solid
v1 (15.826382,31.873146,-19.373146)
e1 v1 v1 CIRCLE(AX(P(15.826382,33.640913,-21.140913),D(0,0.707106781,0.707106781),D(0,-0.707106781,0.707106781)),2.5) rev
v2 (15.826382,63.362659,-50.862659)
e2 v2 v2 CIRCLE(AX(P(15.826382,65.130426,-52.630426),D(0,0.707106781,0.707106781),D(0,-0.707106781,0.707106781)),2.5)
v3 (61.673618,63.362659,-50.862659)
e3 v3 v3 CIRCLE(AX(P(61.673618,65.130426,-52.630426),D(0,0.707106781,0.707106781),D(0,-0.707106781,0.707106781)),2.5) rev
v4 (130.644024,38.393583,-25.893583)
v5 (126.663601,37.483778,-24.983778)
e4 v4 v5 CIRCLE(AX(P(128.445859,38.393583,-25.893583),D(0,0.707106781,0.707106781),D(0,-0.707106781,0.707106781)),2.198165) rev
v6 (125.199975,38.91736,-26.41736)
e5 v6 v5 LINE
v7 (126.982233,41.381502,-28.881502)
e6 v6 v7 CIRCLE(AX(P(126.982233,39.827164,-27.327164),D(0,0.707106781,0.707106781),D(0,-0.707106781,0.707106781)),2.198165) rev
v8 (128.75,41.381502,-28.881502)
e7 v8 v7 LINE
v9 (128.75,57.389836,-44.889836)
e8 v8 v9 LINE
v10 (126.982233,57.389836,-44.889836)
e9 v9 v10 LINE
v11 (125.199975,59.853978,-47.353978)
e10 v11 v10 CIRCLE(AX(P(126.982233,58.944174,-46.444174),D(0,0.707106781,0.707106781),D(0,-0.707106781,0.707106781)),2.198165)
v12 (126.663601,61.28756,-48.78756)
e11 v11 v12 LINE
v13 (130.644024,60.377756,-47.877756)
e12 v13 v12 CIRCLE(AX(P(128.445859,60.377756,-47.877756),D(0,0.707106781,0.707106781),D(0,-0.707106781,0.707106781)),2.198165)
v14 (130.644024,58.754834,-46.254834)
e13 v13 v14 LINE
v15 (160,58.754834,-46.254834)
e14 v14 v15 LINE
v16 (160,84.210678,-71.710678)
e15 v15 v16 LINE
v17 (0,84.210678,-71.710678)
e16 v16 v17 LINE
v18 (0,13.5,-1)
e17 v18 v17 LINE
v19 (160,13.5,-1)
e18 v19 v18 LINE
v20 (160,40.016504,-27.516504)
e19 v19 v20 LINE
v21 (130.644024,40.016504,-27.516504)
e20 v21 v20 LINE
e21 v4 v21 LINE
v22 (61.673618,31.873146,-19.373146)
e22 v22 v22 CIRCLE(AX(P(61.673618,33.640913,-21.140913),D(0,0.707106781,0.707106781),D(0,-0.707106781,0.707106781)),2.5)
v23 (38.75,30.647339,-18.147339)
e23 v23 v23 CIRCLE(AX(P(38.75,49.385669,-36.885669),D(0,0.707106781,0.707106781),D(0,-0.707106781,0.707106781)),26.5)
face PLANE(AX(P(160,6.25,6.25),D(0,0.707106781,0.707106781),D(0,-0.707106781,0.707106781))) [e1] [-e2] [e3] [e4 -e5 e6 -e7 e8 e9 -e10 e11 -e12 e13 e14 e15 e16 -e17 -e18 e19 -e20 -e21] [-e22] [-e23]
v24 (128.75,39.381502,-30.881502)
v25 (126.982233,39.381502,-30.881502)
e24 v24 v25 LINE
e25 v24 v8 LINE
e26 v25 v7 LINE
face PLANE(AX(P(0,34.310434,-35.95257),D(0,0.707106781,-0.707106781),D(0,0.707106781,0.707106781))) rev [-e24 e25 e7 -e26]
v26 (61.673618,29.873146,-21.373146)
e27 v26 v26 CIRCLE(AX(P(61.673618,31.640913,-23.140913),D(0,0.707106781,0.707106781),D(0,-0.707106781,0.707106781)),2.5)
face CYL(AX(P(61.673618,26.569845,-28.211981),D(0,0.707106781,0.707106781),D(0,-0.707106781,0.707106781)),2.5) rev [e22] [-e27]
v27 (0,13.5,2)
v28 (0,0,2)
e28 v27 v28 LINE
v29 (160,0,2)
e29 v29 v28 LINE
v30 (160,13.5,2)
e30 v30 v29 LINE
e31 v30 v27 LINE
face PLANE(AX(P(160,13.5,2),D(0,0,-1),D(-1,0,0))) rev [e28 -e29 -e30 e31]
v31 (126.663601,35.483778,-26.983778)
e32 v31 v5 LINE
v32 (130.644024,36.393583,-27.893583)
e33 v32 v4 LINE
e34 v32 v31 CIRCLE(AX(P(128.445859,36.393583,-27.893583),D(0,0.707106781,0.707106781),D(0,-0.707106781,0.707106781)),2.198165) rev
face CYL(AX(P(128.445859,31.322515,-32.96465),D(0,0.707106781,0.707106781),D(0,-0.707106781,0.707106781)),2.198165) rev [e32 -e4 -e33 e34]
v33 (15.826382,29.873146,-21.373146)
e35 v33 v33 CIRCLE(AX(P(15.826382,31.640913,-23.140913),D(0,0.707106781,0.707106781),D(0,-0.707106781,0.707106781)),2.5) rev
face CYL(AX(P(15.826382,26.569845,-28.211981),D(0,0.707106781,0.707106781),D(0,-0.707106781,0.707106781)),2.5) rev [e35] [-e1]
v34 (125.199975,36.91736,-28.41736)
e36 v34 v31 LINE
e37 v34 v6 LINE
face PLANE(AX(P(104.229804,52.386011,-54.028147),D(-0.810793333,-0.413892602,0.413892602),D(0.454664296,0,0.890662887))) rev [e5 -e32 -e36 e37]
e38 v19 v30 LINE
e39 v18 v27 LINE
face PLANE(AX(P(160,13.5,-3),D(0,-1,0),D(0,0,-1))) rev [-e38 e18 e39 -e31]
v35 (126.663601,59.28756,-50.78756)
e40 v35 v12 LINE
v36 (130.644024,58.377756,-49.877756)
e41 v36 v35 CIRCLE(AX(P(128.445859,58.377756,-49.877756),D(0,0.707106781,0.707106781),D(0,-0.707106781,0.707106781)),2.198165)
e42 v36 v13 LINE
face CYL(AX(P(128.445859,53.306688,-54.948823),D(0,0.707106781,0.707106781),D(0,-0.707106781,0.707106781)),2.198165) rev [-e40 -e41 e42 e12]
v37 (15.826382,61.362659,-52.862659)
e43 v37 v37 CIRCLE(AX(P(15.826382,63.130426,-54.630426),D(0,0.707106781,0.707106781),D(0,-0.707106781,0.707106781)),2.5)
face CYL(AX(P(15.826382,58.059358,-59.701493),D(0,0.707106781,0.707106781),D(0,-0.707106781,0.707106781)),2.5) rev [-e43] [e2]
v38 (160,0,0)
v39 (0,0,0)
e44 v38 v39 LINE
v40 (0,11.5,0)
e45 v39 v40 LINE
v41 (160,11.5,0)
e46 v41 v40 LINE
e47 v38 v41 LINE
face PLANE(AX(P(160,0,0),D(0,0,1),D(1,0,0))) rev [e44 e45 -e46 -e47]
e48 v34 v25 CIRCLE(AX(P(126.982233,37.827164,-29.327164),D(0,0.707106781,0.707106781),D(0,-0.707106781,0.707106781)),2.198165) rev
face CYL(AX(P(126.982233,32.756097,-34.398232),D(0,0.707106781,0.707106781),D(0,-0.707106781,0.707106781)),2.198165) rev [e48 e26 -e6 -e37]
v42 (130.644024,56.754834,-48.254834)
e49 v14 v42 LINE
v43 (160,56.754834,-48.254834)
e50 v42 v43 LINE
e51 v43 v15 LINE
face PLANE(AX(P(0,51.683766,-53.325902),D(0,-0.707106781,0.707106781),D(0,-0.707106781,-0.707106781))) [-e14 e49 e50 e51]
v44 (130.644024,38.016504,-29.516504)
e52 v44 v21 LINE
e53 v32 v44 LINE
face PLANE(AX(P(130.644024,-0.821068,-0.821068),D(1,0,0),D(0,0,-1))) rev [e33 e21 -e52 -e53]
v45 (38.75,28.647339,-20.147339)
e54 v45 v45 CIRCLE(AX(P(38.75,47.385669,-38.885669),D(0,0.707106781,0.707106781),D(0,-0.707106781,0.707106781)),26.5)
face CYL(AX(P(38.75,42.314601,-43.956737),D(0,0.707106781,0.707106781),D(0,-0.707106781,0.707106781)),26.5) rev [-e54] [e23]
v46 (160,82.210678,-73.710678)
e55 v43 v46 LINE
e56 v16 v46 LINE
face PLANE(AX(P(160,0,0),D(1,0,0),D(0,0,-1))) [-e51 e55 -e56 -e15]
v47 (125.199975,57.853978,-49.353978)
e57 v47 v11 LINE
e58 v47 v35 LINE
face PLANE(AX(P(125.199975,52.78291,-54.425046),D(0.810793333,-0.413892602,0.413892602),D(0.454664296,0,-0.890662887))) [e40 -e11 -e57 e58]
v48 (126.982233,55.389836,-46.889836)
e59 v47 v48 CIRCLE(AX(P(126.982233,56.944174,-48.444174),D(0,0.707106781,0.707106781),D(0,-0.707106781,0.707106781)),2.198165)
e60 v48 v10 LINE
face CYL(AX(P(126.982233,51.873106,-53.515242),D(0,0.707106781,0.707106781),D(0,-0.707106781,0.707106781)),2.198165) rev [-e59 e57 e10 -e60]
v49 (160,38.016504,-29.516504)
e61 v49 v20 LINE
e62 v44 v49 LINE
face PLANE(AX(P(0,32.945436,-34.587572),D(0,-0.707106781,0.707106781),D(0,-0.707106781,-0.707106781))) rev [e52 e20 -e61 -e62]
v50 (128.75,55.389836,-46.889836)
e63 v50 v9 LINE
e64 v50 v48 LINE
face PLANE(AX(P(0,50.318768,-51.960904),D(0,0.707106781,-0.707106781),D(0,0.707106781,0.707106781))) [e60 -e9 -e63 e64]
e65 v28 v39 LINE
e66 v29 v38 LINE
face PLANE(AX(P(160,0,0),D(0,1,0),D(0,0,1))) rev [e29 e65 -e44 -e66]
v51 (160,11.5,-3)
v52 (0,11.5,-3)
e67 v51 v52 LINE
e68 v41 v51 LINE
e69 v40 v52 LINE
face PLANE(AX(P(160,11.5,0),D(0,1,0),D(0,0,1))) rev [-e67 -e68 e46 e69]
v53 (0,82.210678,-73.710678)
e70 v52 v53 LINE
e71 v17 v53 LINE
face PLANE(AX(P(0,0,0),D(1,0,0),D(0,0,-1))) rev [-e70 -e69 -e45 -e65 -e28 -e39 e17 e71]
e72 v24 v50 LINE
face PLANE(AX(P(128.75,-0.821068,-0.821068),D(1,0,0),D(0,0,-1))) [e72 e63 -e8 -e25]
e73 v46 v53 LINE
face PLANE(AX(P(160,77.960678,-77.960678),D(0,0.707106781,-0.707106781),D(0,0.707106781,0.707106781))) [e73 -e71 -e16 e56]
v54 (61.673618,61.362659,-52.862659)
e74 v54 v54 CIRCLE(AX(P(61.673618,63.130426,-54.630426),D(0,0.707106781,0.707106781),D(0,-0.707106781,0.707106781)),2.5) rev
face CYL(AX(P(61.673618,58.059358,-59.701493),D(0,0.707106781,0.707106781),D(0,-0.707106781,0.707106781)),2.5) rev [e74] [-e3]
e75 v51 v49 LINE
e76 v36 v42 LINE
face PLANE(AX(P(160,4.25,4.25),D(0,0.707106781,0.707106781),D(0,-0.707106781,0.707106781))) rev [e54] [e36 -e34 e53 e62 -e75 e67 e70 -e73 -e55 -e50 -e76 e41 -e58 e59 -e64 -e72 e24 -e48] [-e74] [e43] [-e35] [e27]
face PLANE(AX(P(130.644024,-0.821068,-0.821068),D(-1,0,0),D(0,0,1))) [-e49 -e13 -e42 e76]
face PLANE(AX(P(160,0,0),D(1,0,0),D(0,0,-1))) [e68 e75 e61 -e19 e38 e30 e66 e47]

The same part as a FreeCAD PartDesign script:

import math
import FreeCAD as App
import Part
import Sketcher

V = App.Vector


def add_polygon(sketch, points):
    """Adds a closed chain of lines whose ends are joined by coincident constraints."""
    first, n = sketch.GeometryCount, len(points)
    for a, b in zip(points, points[1:] + points[:1]):
        sketch.addGeometry(Part.LineSegment(App.Vector(*a, 0), App.Vector(*b, 0)), False)
    for i in range(n):
        sketch.addConstraint(Sketcher.Constraint("Coincident", first + i, 2, first + (i + 1) % n, 1))

doc = App.newDocument("Part")
body = doc.addObject("PartDesign::Body", "Body")

sketch1 = doc.addObject("Sketcher::SketchObject", "Sketch")
body.addObject(sketch1)
sketch1.AttachmentSupport = (doc.YZ_Plane, [""])
sketch1.MapMode = "FlatFace"
add_polygon(sketch1, [(0, 0), (11.5, 0), (11.5, -3), (13.5, -3), (13.5, 2), (0, 2)])
sketch1.addConstraint(Sketcher.Constraint("Horizontal", 0))
sketch1.addConstraint(Sketcher.Constraint("Vertical", 1))
sketch1.addConstraint(Sketcher.Constraint("Horizontal", 2))
sketch1.addConstraint(Sketcher.Constraint("Vertical", 3))
sketch1.addConstraint(Sketcher.Constraint("Horizontal", 4))
sketch1.addConstraint(Sketcher.Constraint("Vertical", 5))
sketch1.addConstraint(Sketcher.Constraint("Coincident", 5, 2, -1, 1))
sketch1.addConstraint(Sketcher.Constraint("Equal", 2, 5))
sketch1.addConstraint(Sketcher.Constraint("DistanceX", 2, 1, 2, 2, 2.0))
sketch1.addConstraint(Sketcher.Constraint("DistanceY", 1, 2, 1, 1, 3.0))
sketch1.addConstraint(Sketcher.Constraint("DistanceX", 0, 1, 0, 2, 11.5))
pad1 = doc.addObject("PartDesign::Pad", "Pad")
body.addObject(pad1)
pad1.Profile = sketch1
pad1.Length = 160

sketch2 = doc.addObject("Sketcher::SketchObject", "Sketch001")
body.addObject(sketch2)
sketch2.AttachmentSupport = (doc.YZ_Plane, [""])
sketch2.MapMode = "FlatFace"
add_polygon(sketch2, [(13.5, -3), (11.5, -3), (82.210678, -73.710678), (84.210678, -71.710678), (13.5, -1)])
sketch2.addConstraint(Sketcher.Constraint("Horizontal", 0))
sketch2.addConstraint(Sketcher.Constraint("Vertical", 4))
sketch2.addConstraint(Sketcher.Constraint("Perpendicular", 1, 2))
sketch2.addConstraint(Sketcher.Constraint("Perpendicular", 2, 3))
sketch2.addConstraint(Sketcher.Constraint("Equal", 0, 4))
sketch2.addConstraint(Sketcher.Constraint("Equal", 1, 3))
sketch2.addConstraint(Sketcher.Constraint("DistanceX", 0, 2, 0, 1, 2.0))
sketch2.addConstraint(Sketcher.Constraint("Distance", 1, 100.0))
sketch2.addConstraint(Sketcher.Constraint("DistanceY", 0, 2, -1, 1, 3.0))
sketch2.addConstraint(Sketcher.Constraint("DistanceX", -1, 1, 0, 2, 11.5))
pad2 = doc.addObject("PartDesign::Pad", "Pad001")
body.addObject(pad2)
pad2.Profile = sketch2
pad2.Length = 160

sketch3 = doc.addObject("Sketcher::SketchObject", "Sketch002")
body.addObject(sketch3)
sketch3.Placement = App.Placement(V(0, 6.25, 6.25), App.Rotation(V(1, 0, 0), V(0, 0.707106781, -0.707106781), V(0, 0.707106781, 0.707106781), "ZXY"))
add_polygon(sketch3, [(128.75, 74.253048), (128.75, 47.753048), (160, 47.753048), (160, 74.253048)])
sketch3.addConstraint(Sketcher.Constraint("Vertical", 0))
sketch3.addConstraint(Sketcher.Constraint("Horizontal", 1))
sketch3.addConstraint(Sketcher.Constraint("Vertical", 2))
sketch3.addConstraint(Sketcher.Constraint("Horizontal", 3))
sketch3.addConstraint(Sketcher.Constraint("DistanceY", 0, 2, 0, 1, 26.5))
sketch3.addConstraint(Sketcher.Constraint("DistanceX", -1, 1, 1, 2, 160.0))
sketch3.addConstraint(Sketcher.Constraint("DistanceX", 1, 1, 1, 2, 31.25))
sketch3.addConstraint(Sketcher.Constraint("DistanceY", -1, 1, 0, 2, 47.753048))
pocket1 = doc.addObject("PartDesign::Pocket", "Pocket")
body.addObject(pocket1)
pocket1.Profile = sketch3
pocket1.Length = 10

sketch4 = doc.addObject("Sketcher::SketchObject", "Sketch003")
body.addObject(sketch4)
sketch4.Placement = App.Placement(V(0, 6.25, 6.25), App.Rotation(V(1, 0, 0), V(0, 0.707106781, -0.707106781), V(0, 0.707106781, 0.707106781), "ZXY"))
sketch4.addGeometry(Part.LineSegment(V(128.75, 74.253048, 0), V(130.644024, 74.253048, 0)), False)
sketch4.addGeometry(Part.LineSegment(V(130.644024, 74.253048, 0), V(130.644024, 76.548206, 0)), False)
sketch4.addGeometry(Part.ArcOfCircle(Part.Circle(V(128.445859, 76.548206, 0), V(0, 0, 1), 2.198165), math.radians(0), math.radians(144.173515)), False)
sketch4.addGeometry(Part.LineSegment(V(126.663601, 77.834864, 0), V(125.199975, 75.807473, 0)), False)
sketch4.addGeometry(Part.ArcOfCircle(Part.Circle(V(126.982233, 74.520815, 0), V(0, 0, 1), 2.198165), math.radians(144.173515), math.radians(270)), False)
sketch4.addGeometry(Part.LineSegment(V(126.982233, 72.32265, 0), V(128.75, 72.32265, 0)), False)
sketch4.addGeometry(Part.LineSegment(V(128.75, 72.32265, 0), V(128.75, 74.253048, 0)), False)
sketch4.addGeometry(Part.LineSegment(V(128.75, 49.683447, 0), V(126.982233, 49.683447, 0)), False)
sketch4.addGeometry(Part.ArcOfCircle(Part.Circle(V(126.982233, 47.485281, 0), V(0, 0, 1), 2.198165), math.radians(90), math.radians(215.826485)), False)
sketch4.addGeometry(Part.LineSegment(V(125.199975, 46.198624, 0), V(126.663601, 44.171233, 0)), False)
sketch4.addGeometry(Part.ArcOfCircle(Part.Circle(V(128.445859, 45.45789, 0), V(0, 0, 1), 2.198165), math.radians(-144.173515), math.radians(0)), False)
sketch4.addGeometry(Part.LineSegment(V(130.644024, 45.45789, 0), V(130.644024, 47.753048, 0)), False)
sketch4.addGeometry(Part.LineSegment(V(130.644024, 47.753048, 0), V(128.75, 47.753048, 0)), False)
sketch4.addGeometry(Part.LineSegment(V(128.75, 47.753048, 0), V(128.75, 49.683447, 0)), False)
sketch4.addConstraint(Sketcher.Constraint("Coincident", 0, 2, 1, 1))
sketch4.addConstraint(Sketcher.Constraint("Tangent", 1, 2, 2, 1))
sketch4.addConstraint(Sketcher.Constraint("Tangent", 2, 2, 3, 1))
sketch4.addConstraint(Sketcher.Constraint("Tangent", 3, 2, 4, 1))
sketch4.addConstraint(Sketcher.Constraint("Tangent", 4, 2, 5, 1))
sketch4.addConstraint(Sketcher.Constraint("Coincident", 5, 2, 6, 1))
sketch4.addConstraint(Sketcher.Constraint("Coincident", 6, 2, 0, 1))
sketch4.addConstraint(Sketcher.Constraint("Tangent", 7, 2, 8, 1))
sketch4.addConstraint(Sketcher.Constraint("Tangent", 8, 2, 9, 1))
sketch4.addConstraint(Sketcher.Constraint("Tangent", 9, 2, 10, 1))
sketch4.addConstraint(Sketcher.Constraint("Tangent", 10, 2, 11, 1))
sketch4.addConstraint(Sketcher.Constraint("Coincident", 11, 2, 12, 1))
sketch4.addConstraint(Sketcher.Constraint("Coincident", 12, 2, 13, 1))
sketch4.addConstraint(Sketcher.Constraint("Coincident", 13, 2, 7, 1))
sketch4.addConstraint(Sketcher.Constraint("Horizontal", 0))
sketch4.addConstraint(Sketcher.Constraint("Vertical", 1))
sketch4.addConstraint(Sketcher.Constraint("Horizontal", 5))
sketch4.addConstraint(Sketcher.Constraint("Vertical", 6))
sketch4.addConstraint(Sketcher.Constraint("Horizontal", 7))
sketch4.addConstraint(Sketcher.Constraint("Vertical", 11))
sketch4.addConstraint(Sketcher.Constraint("Horizontal", 12))
sketch4.addConstraint(Sketcher.Constraint("Vertical", 13))
sketch4.addConstraint(Sketcher.Constraint("Equal", 2, 4))
sketch4.addConstraint(Sketcher.Constraint("Equal", 4, 8))
sketch4.addConstraint(Sketcher.Constraint("Equal", 8, 10))
sketch4.addConstraint(Sketcher.Constraint("Vertical", 4, 3, 8, 3))
sketch4.addConstraint(Sketcher.Constraint("Vertical", 2, 3, 10, 3))
sketch4.addConstraint(Sketcher.Constraint("Vertical", 3, 2, 8, 2))
sketch4.addConstraint(Sketcher.Constraint("Vertical", 6, 2, 12, 2))
sketch4.addConstraint(Sketcher.Constraint("Equal", 1, 11))
sketch4.addConstraint(Sketcher.Constraint("DistanceX", -1, 1, 5, 2, 128.75))
sketch4.addConstraint(Sketcher.Constraint("DistanceY", 6, 1, 6, 2, 1.930399))
sketch4.addConstraint(Sketcher.Constraint("Radius", 2, 2.198165))
sketch4.addConstraint(Sketcher.Constraint("DistanceX", -1, 1, 2, 2, 126.663601))
sketch4.addConstraint(Sketcher.Constraint("DistanceY", 7, 2, 6, 2, 24.569601))
sketch4.addConstraint(Sketcher.Constraint("DistanceX", 0, 1, 0, 2, 1.894024))
sketch4.addConstraint(Sketcher.Constraint("DistanceX", 5, 1, 5, 2, 1.767767))
sketch4.addConstraint(Sketcher.Constraint("DistanceY", -1, 1, 8, 3, 47.485281))
pocket2 = doc.addObject("PartDesign::Pocket", "Pocket001")
body.addObject(pocket2)
pocket2.Profile = sketch4
pocket2.Length = 10

sketch5 = doc.addObject("Sketcher::SketchObject", "Sketch004")
body.addObject(sketch5)
sketch5.Placement = App.Placement(V(0, 6.25, 6.25), App.Rotation(V(1, 0, 0), V(0, 0.707106781, -0.707106781), V(0, 0.707106781, 0.707106781), "ZXY"))
sketch5.addGeometry(Part.Circle(V(38.75, 61.003048, 0), V(0, 0, 1), 26.5), False)
sketch5.addConstraint(Sketcher.Constraint("Diameter", 0, 53.0))
sketch5.addConstraint(Sketcher.Constraint("DistanceX", -1, 1, 0, 3, 38.75))
sketch5.addConstraint(Sketcher.Constraint("DistanceY", -1, 1, 0, 3, 61.003048))
pocket3 = doc.addObject("PartDesign::Pocket", "Pocket002")
body.addObject(pocket3)
pocket3.Profile = sketch5
pocket3.Length = 10

sketch6 = doc.addObject("Sketcher::SketchObject", "Sketch005")
body.addObject(sketch6)
sketch6.Placement = App.Placement(V(0, 6.25, 6.25), App.Rotation(V(1, 0, 0), V(0, 0.707106781, -0.707106781), V(0, 0.707106781, 0.707106781), "ZXY"))
sketch6.addGeometry(Part.Circle(V(15.826382, 83.269496, 0), V(0, 0, 1), 2.5), False)
sketch6.addGeometry(Part.Circle(V(15.826382, 38.7366, 0), V(0, 0, 1), 2.5), False)
sketch6.addGeometry(Part.Circle(V(61.673618, 38.7366, 0), V(0, 0, 1), 2.5), False)
sketch6.addGeometry(Part.Circle(V(61.673618, 83.269496, 0), V(0, 0, 1), 2.5), False)
sketch6.addConstraint(Sketcher.Constraint("Equal", 0, 1))
sketch6.addConstraint(Sketcher.Constraint("Equal", 1, 2))
sketch6.addConstraint(Sketcher.Constraint("Equal", 2, 3))
sketch6.addConstraint(Sketcher.Constraint("Horizontal", 1, 3, 2, 3))
sketch6.addConstraint(Sketcher.Constraint("Horizontal", 0, 3, 3, 3))
sketch6.addConstraint(Sketcher.Constraint("Vertical", 0, 3, 1, 3))
sketch6.addConstraint(Sketcher.Constraint("Vertical", 2, 3, 3, 3))
sketch6.addConstraint(Sketcher.Constraint("Diameter", 0, 5.0))
sketch6.addConstraint(Sketcher.Constraint("DistanceY", -1, 1, 1, 3, 38.7366))
sketch6.addConstraint(Sketcher.Constraint("DistanceX", -1, 1, 0, 3, 15.826382))
sketch6.addConstraint(Sketcher.Constraint("DistanceX", -1, 1, 2, 3, 61.673618))
sketch6.addConstraint(Sketcher.Constraint("DistanceY", -1, 1, 0, 3, 83.269496))
pocket4 = doc.addObject("PartDesign::Pocket", "Pocket003")
body.addObject(pocket4)
pocket4.Profile = sketch6
pocket4.Length = 10

doc.recompute()
